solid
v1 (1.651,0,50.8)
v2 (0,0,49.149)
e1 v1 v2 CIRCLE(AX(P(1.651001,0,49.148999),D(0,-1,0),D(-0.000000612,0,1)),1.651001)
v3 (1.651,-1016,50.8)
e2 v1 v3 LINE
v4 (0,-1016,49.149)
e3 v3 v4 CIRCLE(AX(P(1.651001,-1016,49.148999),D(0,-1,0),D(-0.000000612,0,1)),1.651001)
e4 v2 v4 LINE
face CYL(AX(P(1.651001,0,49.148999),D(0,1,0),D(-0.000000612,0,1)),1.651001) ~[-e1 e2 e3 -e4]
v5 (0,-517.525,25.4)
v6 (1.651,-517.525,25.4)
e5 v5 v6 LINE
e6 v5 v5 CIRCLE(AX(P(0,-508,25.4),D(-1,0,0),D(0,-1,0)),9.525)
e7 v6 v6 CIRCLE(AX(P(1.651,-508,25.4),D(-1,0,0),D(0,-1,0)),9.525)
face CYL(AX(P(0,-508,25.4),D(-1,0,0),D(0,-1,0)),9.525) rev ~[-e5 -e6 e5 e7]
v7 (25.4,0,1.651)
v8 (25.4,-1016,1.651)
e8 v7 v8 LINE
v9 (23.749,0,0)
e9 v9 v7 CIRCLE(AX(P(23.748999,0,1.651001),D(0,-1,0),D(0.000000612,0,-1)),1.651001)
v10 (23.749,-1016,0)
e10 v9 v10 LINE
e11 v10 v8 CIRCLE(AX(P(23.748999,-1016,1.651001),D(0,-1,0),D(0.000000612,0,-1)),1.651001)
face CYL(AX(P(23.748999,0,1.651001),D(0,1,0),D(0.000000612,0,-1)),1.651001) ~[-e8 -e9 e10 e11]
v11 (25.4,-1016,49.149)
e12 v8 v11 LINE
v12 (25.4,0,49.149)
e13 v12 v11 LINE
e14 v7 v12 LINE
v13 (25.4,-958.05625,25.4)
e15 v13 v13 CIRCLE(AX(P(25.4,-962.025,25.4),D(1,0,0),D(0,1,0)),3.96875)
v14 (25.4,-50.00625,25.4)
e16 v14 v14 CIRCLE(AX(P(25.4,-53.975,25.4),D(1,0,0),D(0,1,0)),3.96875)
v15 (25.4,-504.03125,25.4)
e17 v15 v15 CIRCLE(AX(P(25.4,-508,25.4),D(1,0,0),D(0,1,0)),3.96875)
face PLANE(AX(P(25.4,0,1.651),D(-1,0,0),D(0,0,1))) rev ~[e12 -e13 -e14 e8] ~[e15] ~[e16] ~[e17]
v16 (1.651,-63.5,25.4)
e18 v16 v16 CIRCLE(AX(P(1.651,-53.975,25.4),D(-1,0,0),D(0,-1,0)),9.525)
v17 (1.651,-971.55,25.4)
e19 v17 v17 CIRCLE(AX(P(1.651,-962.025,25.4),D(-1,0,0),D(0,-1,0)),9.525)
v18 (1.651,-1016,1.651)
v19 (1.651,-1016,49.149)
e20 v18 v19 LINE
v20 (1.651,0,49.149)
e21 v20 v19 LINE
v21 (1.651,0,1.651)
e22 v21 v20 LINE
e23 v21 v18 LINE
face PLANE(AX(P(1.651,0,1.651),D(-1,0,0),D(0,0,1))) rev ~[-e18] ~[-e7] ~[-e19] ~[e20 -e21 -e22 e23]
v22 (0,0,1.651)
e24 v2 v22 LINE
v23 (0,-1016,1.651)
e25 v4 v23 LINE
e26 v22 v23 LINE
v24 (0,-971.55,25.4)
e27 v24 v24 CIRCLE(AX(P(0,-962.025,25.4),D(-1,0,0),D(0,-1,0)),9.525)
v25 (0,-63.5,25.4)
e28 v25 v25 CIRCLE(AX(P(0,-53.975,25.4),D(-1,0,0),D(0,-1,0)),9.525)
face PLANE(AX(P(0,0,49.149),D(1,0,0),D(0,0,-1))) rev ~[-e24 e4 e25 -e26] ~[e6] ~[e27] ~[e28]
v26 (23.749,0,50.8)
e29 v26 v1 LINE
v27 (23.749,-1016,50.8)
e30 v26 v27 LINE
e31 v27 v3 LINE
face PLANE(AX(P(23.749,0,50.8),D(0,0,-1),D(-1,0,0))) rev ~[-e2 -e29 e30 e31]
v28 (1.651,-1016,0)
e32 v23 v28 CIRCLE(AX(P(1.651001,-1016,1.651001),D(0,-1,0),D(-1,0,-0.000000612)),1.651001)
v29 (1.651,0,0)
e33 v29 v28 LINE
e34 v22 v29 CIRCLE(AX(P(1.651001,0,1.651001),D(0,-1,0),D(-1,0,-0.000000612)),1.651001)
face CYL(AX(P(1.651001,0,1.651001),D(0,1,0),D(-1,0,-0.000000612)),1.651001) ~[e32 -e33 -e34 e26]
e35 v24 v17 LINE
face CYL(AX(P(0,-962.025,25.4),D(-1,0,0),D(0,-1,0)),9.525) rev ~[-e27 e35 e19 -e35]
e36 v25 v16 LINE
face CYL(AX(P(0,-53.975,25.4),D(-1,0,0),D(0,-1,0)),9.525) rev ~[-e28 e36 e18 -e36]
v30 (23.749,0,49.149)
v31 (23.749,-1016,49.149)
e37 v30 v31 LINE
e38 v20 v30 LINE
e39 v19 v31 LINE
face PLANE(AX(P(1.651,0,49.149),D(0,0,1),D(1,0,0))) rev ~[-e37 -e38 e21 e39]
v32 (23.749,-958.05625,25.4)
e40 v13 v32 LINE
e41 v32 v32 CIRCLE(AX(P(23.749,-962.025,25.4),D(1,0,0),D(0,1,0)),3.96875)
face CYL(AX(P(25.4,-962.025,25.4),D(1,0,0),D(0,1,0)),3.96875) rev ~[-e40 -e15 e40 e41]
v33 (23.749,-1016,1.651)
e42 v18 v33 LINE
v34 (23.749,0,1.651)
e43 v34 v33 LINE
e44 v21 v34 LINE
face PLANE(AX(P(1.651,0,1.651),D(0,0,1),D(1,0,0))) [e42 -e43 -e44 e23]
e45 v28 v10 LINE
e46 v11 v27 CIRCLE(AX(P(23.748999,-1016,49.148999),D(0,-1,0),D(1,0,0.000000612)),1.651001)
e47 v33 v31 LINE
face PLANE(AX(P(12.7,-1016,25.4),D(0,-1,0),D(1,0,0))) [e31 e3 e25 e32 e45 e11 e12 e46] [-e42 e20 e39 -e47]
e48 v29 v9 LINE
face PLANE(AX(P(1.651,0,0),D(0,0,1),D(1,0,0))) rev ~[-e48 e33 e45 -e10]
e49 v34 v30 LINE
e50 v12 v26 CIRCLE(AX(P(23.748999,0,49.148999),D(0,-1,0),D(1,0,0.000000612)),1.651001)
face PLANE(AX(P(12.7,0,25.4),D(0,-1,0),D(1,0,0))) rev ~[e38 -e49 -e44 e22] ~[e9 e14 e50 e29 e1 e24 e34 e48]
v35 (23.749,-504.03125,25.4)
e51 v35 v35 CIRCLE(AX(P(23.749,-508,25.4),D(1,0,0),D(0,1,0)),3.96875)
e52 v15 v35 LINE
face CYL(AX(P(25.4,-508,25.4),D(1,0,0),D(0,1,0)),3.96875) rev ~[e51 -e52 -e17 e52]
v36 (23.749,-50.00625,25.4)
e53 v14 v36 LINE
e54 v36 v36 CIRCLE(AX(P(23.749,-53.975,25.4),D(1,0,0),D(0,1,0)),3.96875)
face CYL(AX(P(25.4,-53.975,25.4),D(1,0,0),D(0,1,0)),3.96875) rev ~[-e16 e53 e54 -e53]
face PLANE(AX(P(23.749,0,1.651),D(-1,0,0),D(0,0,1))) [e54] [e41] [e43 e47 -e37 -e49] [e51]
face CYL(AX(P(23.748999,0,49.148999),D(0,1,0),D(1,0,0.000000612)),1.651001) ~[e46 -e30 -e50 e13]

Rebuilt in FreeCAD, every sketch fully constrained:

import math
import FreeCAD as App
import Part
import Sketcher
Q = App.Units.Quantity

doc = App.newDocument("Part")
body = doc.addObject("PartDesign::Body", "Body")

# Sketch on XZ plane
sketch1 = doc.addObject("Sketcher::SketchObject", "Sketch")
body.addObject(sketch1)
sketch1.AttachmentSupport = (doc.XZ_Plane, [""])
sketch1.MapMode = "FlatFace"
sketch1.addGeometry([
    Part.ArcOfCircle(Part.Circle(App.Vector(1.7, 1.7, 0), App.Vector(0, 0, 1), 1.7), math.radians(-180), math.radians(-90)),  # 0
    Part.LineSegment(App.Vector(1.7, 0, 0), App.Vector(23.7, 0, 0)),  # 1
    Part.ArcOfCircle(Part.Circle(App.Vector(23.7, 1.7, 0), App.Vector(0, 0, 1), 1.7), math.radians(-90), math.radians(0)),  # 2
    Part.LineSegment(App.Vector(25.4, 1.7, 0), App.Vector(25.4, 49.1, 0)),  # 3
    Part.ArcOfCircle(Part.Circle(App.Vector(23.7, 49.1, 0), App.Vector(0, 0, 1), 1.7), math.radians(0), math.radians(90)),  # 4
    Part.LineSegment(App.Vector(23.7, 50.8, 0), App.Vector(1.7, 50.8, 0)),  # 5
    Part.ArcOfCircle(Part.Circle(App.Vector(1.7, 49.1, 0), App.Vector(0, 0, 1), 1.7), math.radians(90), math.radians(180)),  # 6
    Part.LineSegment(App.Vector(0, 49.1, 0), App.Vector(0, 1.7, 0)),  # 7
    Part.LineSegment(App.Vector(23.7, 1.7, 0), App.Vector(1.7, 1.7, 0)),  # 8
    Part.LineSegment(App.Vector(1.7, 1.7, 0), App.Vector(1.7, 49.1, 0)),  # 9
    Part.LineSegment(App.Vector(1.7, 49.1, 0), App.Vector(23.7, 49.1, 0)),  # 10
    Part.LineSegment(App.Vector(23.7, 49.1, 0), App.Vector(23.7, 1.7, 0)),  # 11
], False)
sketch1.addConstraint([
    Sketcher.Constraint("Tangent", 0, 2, 1, 1),
    Sketcher.Constraint("Tangent", 1, 2, 2, 1),
    Sketcher.Constraint("Tangent", 2, 2, 3, 1),
    Sketcher.Constraint("Tangent", 3, 2, 4, 1),
    Sketcher.Constraint("Tangent", 4, 2, 5, 1),
    Sketcher.Constraint("Tangent", 5, 2, 6, 1),
    Sketcher.Constraint("Tangent", 6, 2, 7, 1),
    Sketcher.Constraint("Tangent", 7, 2, 0, 1),
    Sketcher.Constraint("Coincident", 8, 2, 9, 1),
    Sketcher.Constraint("Coincident", 9, 2, 10, 1),
    Sketcher.Constraint("Coincident", 10, 2, 11, 1),
    Sketcher.Constraint("Coincident", 11, 2, 8, 1),
    Sketcher.Constraint("Horizontal", 1),
    Sketcher.Constraint("Vertical", 3),
    Sketcher.Constraint("Horizontal", 5),
    Sketcher.Constraint("Vertical", 7),
    Sketcher.Constraint("Horizontal", 8),
    Sketcher.Constraint("Vertical", 9),
    Sketcher.Constraint("Horizontal", 10),
    Sketcher.Constraint("Vertical", 11),
    Sketcher.Constraint("Coincident", 8, 2, 0, 3),
    Sketcher.Constraint("Coincident", 9, 2, 6, 3),
    Sketcher.Constraint("Coincident", 10, 2, 4, 3),
    Sketcher.Constraint("Equal", 0, 2),
    Sketcher.Constraint("PointOnObject", 0, 2, -1),
    Sketcher.Constraint("PointOnObject", 6, 2, -2),
    Sketcher.Constraint("DistanceX", -1, 1, 2, 2, Q("1 in")),
    Sketcher.Constraint("DistanceY", -1, 1, 4, 2, Q("2 in")),
    Sketcher.Constraint("Radius", 0, Q("0.065 in")),
])
pad1 = doc.addObject("PartDesign::Pad", "Pad")
body.addObject(pad1)
pad1.Profile = sketch1
pad1.Length = Q("40 in")

# Sketch on YZ plane
sketch2 = doc.addObject("Sketcher::SketchObject", "Sketch001")
body.addObject(sketch2)
sketch2.AttachmentSupport = (doc.YZ_Plane, [""])
sketch2.MapMode = "FlatFace"
sketch2.AttachmentOffset = App.Placement(App.Vector(0, 0, 1 * 25.4), App.Rotation())
sketch2.addGeometry([
    Part.Circle(App.Vector(-508, 25.4, 0), App.Vector(0, 0, 1), 4),
    Part.Circle(App.Vector(-54, 25.4, 0), App.Vector(0, 0, 1), 4),
    Part.Circle(App.Vector(-962, 25.4, 0), App.Vector(0, 0, 1), 4),
], False)
sketch2.addConstraint([
    Sketcher.Constraint("Equal", 0, 1),
    Sketcher.Constraint("Equal", 1, 2),
    Sketcher.Constraint("Horizontal", 0, 3, 1, 3),
    Sketcher.Constraint("Horizontal", 1, 3, 2, 3),
    Sketcher.Constraint("Diameter", 0, Q("0.3125 in")),
    Sketcher.Constraint("DistanceX", 0, 3, -1, 1, Q("20 in")),
    Sketcher.Constraint("DistanceY", -1, 1, 0, 3, Q("1 in")),
    Sketcher.Constraint("DistanceX", 2, 3, 1, 3, Q("35.75 in")),
    Sketcher.Constraint("DistanceX", 1, 3, -1, 1, Q("2.125 in")),
])
pocket1 = doc.addObject("PartDesign::Pocket", "Pocket")
body.addObject(pocket1)
pocket1.Profile = sketch2
pocket1.Length = Q("0.065 in")

# Sketch on YZ plane
sketch3 = doc.addObject("Sketcher::SketchObject", "Sketch002")
body.addObject(sketch3)
sketch3.AttachmentSupport = (doc.YZ_Plane, [""])
sketch3.MapMode = "FlatFace"
sketch3.addGeometry([
    Part.Circle(App.Vector(-508, 25, 0), App.Vector(0, 0, 1), 10),
    Part.Circle(App.Vector(-54, 25, 0), App.Vector(0, 0, 1), 10),
    Part.Circle(App.Vector(-962, 25, 0), App.Vector(0, 0, 1), 10),
], False)
sketch3.addConstraint([
    Sketcher.Constraint("Equal", 0, 1),
    Sketcher.Constraint("Equal", 1, 2),
    Sketcher.Constraint("Horizontal", 0, 3, 1, 3),
    Sketcher.Constraint("Horizontal", 1, 3, 2, 3),
    Sketcher.Constraint("Diameter", 0, Q("0.75 in")),
    Sketcher.Constraint("DistanceX", 0, 3, -1, 1, Q("20 in")),
    Sketcher.Constraint("DistanceY", -1, 1, 0, 3, Q("1 in")),
    Sketcher.Constraint("DistanceX", 2, 3, 1, 3, Q("35.75 in")),
    Sketcher.Constraint("DistanceX", 1, 3, -1, 1, Q("2.125 in")),
])
pocket2 = doc.addObject("PartDesign::Pocket", "Pocket001")
body.addObject(pocket2)
pocket2.Profile = sketch3
pocket2.Length = Q("0.065 in")
pocket2.Reversed = True

doc.recompute()
